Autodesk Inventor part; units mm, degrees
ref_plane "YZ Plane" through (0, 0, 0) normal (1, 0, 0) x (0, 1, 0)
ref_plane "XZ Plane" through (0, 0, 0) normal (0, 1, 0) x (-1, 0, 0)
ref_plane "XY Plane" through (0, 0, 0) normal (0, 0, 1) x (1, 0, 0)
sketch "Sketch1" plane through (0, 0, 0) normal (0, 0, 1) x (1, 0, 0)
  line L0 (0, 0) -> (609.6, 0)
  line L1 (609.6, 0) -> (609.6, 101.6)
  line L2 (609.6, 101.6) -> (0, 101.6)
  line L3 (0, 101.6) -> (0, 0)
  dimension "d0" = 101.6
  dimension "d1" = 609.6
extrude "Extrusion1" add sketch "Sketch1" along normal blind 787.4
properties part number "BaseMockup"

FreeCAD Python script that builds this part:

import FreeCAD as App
import Part
import Sketcher
Q = App.Units.Quantity

doc = App.newDocument("Part")
body = doc.addObject("PartDesign::Body", "Body")

sketch1 = body.newObject("Sketcher::SketchObject", "Sketch")
sketch1.AttachmentSupport = (doc.getObject("XY_Plane"), [""])
sketch1.MapMode = "FlatFace"
sketch1.addGeometry([
    Part.LineSegment(App.Vector(0, 101.6, 0), App.Vector(0, 0, 0)),
    Part.LineSegment(App.Vector(0, 0, 0), App.Vector(609.6, 0, 0)),
    Part.LineSegment(App.Vector(609.6, 0, 0), App.Vector(609.6, 101.6, 0)),
    Part.LineSegment(App.Vector(609.6, 101.6, 0), App.Vector(0, 101.6, 0)),
], False)
sketch1.addConstraint([
    Sketcher.Constraint("Coincident", 0, 2, 1, 1),
    Sketcher.Constraint("Coincident", 1, 2, 2, 1),
    Sketcher.Constraint("Coincident", 2, 2, 3, 1),
    Sketcher.Constraint("Coincident", 3, 2, 0, 1),
    Sketcher.Constraint("Vertical", 0),
    Sketcher.Constraint("Horizontal", 1),
    Sketcher.Constraint("Vertical", 2),
    Sketcher.Constraint("Horizontal", 3),
    Sketcher.Constraint("Coincident", 0, 2, -1, 1),
    Sketcher.Constraint("DistanceX", 1, 1, 1, 2, Q("24 in")),
    Sketcher.Constraint("DistanceY", 0, 2, 0, 1, Q("4 in")),
])
pad1 = body.newObject("PartDesign::Pad", "Pad")
pad1.Profile = sketch1
pad1.Length = Q("31 in")

doc.recompute()
